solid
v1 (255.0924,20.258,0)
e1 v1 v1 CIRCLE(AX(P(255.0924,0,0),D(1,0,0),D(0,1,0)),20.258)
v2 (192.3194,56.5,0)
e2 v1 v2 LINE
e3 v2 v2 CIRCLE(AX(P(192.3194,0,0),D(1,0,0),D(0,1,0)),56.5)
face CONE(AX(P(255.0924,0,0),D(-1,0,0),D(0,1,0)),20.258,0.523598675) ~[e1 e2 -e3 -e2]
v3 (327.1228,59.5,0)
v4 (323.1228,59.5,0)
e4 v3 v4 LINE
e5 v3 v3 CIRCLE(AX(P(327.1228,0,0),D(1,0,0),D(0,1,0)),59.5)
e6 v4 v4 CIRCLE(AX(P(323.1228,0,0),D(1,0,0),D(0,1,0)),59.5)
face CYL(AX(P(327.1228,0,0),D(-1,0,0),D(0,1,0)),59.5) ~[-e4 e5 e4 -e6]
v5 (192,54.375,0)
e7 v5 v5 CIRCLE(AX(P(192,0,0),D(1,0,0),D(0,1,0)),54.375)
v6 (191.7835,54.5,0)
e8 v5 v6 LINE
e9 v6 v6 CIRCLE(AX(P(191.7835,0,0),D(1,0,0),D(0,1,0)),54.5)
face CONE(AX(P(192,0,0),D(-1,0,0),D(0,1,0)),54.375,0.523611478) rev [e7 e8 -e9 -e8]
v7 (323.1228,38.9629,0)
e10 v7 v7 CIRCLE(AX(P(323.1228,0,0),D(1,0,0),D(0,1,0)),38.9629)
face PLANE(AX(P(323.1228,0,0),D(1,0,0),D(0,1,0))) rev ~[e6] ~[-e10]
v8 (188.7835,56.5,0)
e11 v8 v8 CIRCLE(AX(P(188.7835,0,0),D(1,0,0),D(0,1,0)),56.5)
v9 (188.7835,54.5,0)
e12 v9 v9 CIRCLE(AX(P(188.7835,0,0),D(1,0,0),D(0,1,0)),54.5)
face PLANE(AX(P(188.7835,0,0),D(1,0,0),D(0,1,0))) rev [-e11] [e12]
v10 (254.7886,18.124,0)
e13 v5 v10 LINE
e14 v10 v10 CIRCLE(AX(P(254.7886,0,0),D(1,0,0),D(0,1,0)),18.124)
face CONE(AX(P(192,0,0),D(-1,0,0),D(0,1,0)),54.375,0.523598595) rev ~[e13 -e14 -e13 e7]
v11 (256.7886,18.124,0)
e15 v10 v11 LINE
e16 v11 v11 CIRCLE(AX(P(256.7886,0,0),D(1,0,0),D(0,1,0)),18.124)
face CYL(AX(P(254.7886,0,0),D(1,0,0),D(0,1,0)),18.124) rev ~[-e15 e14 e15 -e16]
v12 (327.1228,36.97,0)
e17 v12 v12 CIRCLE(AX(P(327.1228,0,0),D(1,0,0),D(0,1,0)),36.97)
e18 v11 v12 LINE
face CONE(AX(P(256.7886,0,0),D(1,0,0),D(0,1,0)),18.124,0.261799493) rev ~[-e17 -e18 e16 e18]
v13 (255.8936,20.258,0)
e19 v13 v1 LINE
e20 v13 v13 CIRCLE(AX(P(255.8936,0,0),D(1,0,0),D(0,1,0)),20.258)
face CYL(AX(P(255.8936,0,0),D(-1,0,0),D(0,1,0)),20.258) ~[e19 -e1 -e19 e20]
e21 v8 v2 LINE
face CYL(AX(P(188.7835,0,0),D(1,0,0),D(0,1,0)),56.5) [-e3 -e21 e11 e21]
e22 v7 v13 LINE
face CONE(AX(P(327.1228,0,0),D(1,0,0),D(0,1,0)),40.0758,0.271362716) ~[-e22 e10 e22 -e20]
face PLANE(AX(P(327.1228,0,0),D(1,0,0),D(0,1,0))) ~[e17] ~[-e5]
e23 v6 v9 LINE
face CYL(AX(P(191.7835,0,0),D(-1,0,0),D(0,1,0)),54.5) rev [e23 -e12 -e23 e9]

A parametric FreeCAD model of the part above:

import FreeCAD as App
import Part
import Sketcher
Q = App.Units.Quantity

doc = App.newDocument("Part")
body = doc.addObject("PartDesign::Body", "Body")

# Sketch on XY plane
sketch1 = doc.addObject("Sketcher::SketchObject", "Sketch")
body.addObject(sketch1)
sketch1.AttachmentSupport = (doc.XY_Plane, [""])
sketch1.MapMode = "FlatFace"
sketch1.addGeometry(Part.LineSegment(App.Vector(191.78, 54.5, 0), App.Vector(192, 54.38, 0)), False)
sketch1.addGeometry(Part.LineSegment(App.Vector(192, 54.38, 0), App.Vector(254.79, 18.12, 0)), False)
sketch1.addGeometry(Part.LineSegment(App.Vector(254.79, 18.12, 0), App.Vector(256.79, 18.12, 0)), False)
sketch1.addGeometry(Part.LineSegment(App.Vector(256.79, 18.12, 0), App.Vector(327.12, 36.97, 0)), False)
sketch1.addGeometry(Part.LineSegment(App.Vector(327.12, 36.97, 0), App.Vector(327.12, 59.5, 0)), False)
sketch1.addGeometry(Part.LineSegment(App.Vector(327.12, 59.5, 0), App.Vector(323.12, 59.5, 0)), False)
sketch1.addGeometry(Part.LineSegment(App.Vector(323.12, 59.5, 0), App.Vector(323.12, 38.96, 0)), False)
sketch1.addGeometry(Part.LineSegment(App.Vector(323.12, 38.96, 0), App.Vector(255.89, 20.26, 0)), False)
sketch1.addGeometry(Part.LineSegment(App.Vector(255.89, 20.26, 0), App.Vector(255.09, 20.26, 0)), False)
sketch1.addGeometry(Part.LineSegment(App.Vector(255.09, 20.26, 0), App.Vector(192.32, 56.5, 0)), False)
sketch1.addGeometry(Part.LineSegment(App.Vector(192.32, 56.5, 0), App.Vector(188.78, 56.5, 0)), False)
sketch1.addGeometry(Part.LineSegment(App.Vector(188.78, 56.5, 0), App.Vector(188.78, 54.5, 0)), False)
sketch1.addGeometry(Part.LineSegment(App.Vector(188.78, 54.5, 0), App.Vector(191.78, 54.5, 0)), False)
sketch1.addConstraint(Sketcher.Constraint("Coincident", 0, 2, 1, 1))
sketch1.addConstraint(Sketcher.Constraint("Coincident", 1, 2, 2, 1))
sketch1.addConstraint(Sketcher.Constraint("Coincident", 2, 2, 3, 1))
sketch1.addConstraint(Sketcher.Constraint("Coincident", 3, 2, 4, 1))
sketch1.addConstraint(Sketcher.Constraint("Coincident", 4, 2, 5, 1))
sketch1.addConstraint(Sketcher.Constraint("Coincident", 5, 2, 6, 1))
sketch1.addConstraint(Sketcher.Constraint("Coincident", 6, 2, 7, 1))
sketch1.addConstraint(Sketcher.Constraint("Coincident", 7, 2, 8, 1))
sketch1.addConstraint(Sketcher.Constraint("Coincident", 8, 2, 9, 1))
sketch1.addConstraint(Sketcher.Constraint("Coincident", 9, 2, 10, 1))
sketch1.addConstraint(Sketcher.Constraint("Coincident", 10, 2, 11, 1))
sketch1.addConstraint(Sketcher.Constraint("Coincident", 11, 2, 12, 1))
sketch1.addConstraint(Sketcher.Constraint("Coincident", 12, 2, 0, 1))
sketch1.addConstraint(Sketcher.Constraint("Horizontal", 2))
sketch1.addConstraint(Sketcher.Constraint("Vertical", 4))
sketch1.addConstraint(Sketcher.Constraint("Horizontal", 5))
sketch1.addConstraint(Sketcher.Constraint("Vertical", 6))
sketch1.addConstraint(Sketcher.Constraint("Horizontal", 8))
sketch1.addConstraint(Sketcher.Constraint("Horizontal", 10))
sketch1.addConstraint(Sketcher.Constraint("Vertical", 11))
sketch1.addConstraint(Sketcher.Constraint("Horizontal", 12))
sketch1.addConstraint(Sketcher.Constraint("Parallel", 0, 1))
sketch1.addConstraint(Sketcher.Constraint("Parallel", 1, 9))
sketch1.addConstraint(Sketcher.Constraint("Equal", 2, 11))
sketch1.addConstraint(Sketcher.Constraint("DistanceX", 2, 1, 2, 2, 2.0))
sketch1.addConstraint(Sketcher.Constraint("DistanceX", 5, 2, 5, 1, 4.0))
sketch1.addConstraint(Sketcher.Constraint("DistanceX", 12, 1, 12, 2, 3.0))
sketch1.addConstraint(Sketcher.Constraint("Angle", 1, Q("-30 deg")))
sketch1.addConstraint(Sketcher.Constraint("Angle", 3, Q("15 deg")))
sketch1.addConstraint(Sketcher.Constraint("DistanceY", -1, 1, 4, 2, 59.5))
sketch1.addConstraint(Sketcher.Constraint("DistanceY", -1, 1, 11, 2, 54.5))
sketch1.addConstraint(Sketcher.Constraint("DistanceY", -1, 1, 3, 2, 36.97))
sketch1.addConstraint(Sketcher.Constraint("DistanceY", -1, 1, 1, 2, 18.124))
sketch1.addConstraint(Sketcher.Constraint("DistanceX", -1, 1, 0, 2, 192.0))
sketch1.addConstraint(Sketcher.Constraint("Distance", 0, 0.25))
sketch1.addConstraint(Sketcher.Constraint("DistanceX", 10, 2, 10, 1, 3.536))
sketch1.addConstraint(Sketcher.Constraint("DistanceY", 6, 2, 6, 1, 20.537))
sketch1.addConstraint(Sketcher.Constraint("DistanceX", 10, 2, 7, 2, 67.11))
sketch1.addConstraint(Sketcher.Constraint("Distance", 9, 72.484))
revolution = doc.addObject("PartDesign::Revolution", "Revolution")
body.addObject(revolution)
revolution.Profile = sketch1
revolution.ReferenceAxis = (sketch1, ["H_Axis"])
revolution.Angle = 360

doc.recompute()
